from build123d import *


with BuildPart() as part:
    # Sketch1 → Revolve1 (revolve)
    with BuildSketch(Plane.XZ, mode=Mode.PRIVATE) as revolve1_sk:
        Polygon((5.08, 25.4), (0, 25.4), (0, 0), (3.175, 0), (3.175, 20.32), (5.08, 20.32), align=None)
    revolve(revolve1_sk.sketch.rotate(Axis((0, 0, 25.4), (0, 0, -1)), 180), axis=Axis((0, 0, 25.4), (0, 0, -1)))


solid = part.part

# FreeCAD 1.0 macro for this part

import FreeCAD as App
import Part
import Sketcher

V = App.Vector
Q = App.Units.Quantity

doc = App.newDocument("Part")
body = doc.addObject("PartDesign::Body", "Body")

# Sketch on XZ plane
sketch1 = body.newObject("Sketcher::SketchObject", "Sketch")
sketch1.AttachmentSupport = (doc.getObject("XZ_Plane"), [""])
sketch1.MapMode = "FlatFace"
sketch1.addGeometry(Part.LineSegment(V(5.1, 25.4, 0), V(0, 25.4, 0)), False)
sketch1.addGeometry(Part.LineSegment(V(0, 25.4, 0), V(0, 0, 0)), False)
sketch1.addGeometry(Part.LineSegment(V(0, 0, 0), V(3.2, 0, 0)), False)
sketch1.addGeometry(Part.LineSegment(V(3.2, 0, 0), V(3.2, 20.3, 0)), False)
sketch1.addGeometry(Part.LineSegment(V(3.2, 20.3, 0), V(5.1, 20.3, 0)), False)
sketch1.addGeometry(Part.LineSegment(V(5.1, 20.3, 0), V(5.1, 25.4, 0)), False)
sketch1.addConstraint(Sketcher.Constraint("Coincident", 0, 2, 1, 1))
sketch1.addConstraint(Sketcher.Constraint("Coincident", 1, 2, 2, 1))
sketch1.addConstraint(Sketcher.Constraint("Coincident", 2, 2, 3, 1))
sketch1.addConstraint(Sketcher.Constraint("Coincident", 3, 2, 4, 1))
sketch1.addConstraint(Sketcher.Constraint("Coincident", 4, 2, 5, 1))
sketch1.addConstraint(Sketcher.Constraint("Coincident", 5, 2, 0, 1))
sketch1.addConstraint(Sketcher.Constraint("Horizontal", 0))
sketch1.addConstraint(Sketcher.Constraint("Vertical", 1))
sketch1.addConstraint(Sketcher.Constraint("Horizontal", 2))
sketch1.addConstraint(Sketcher.Constraint("Vertical", 3))
sketch1.addConstraint(Sketcher.Constraint("Horizontal", 4))
sketch1.addConstraint(Sketcher.Constraint("Vertical", 5))
sketch1.addConstraint(Sketcher.Constraint("Coincident", 1, 2, -1, 1))
sketch1.addConstraint(Sketcher.Constraint("Equal", 0, 5))
sketch1.addConstraint(Sketcher.Constraint("DistanceY", 1, 2, 1, 1, Q("1 in")))
sketch1.addConstraint(Sketcher.Constraint("DistanceX", 0, 2, 0, 1, Q("0.2 in")))
sketch1.addConstraint(Sketcher.Constraint("DistanceX", 2, 1, 2, 2, Q("0.125 in")))
revolution = body.newObject("PartDesign::Revolution", "Revolution")
revolution.Profile = sketch1
revolution.ReferenceAxis = (sketch1, ["V_Axis"])
revolution.Angle = 360

doc.recompute()
